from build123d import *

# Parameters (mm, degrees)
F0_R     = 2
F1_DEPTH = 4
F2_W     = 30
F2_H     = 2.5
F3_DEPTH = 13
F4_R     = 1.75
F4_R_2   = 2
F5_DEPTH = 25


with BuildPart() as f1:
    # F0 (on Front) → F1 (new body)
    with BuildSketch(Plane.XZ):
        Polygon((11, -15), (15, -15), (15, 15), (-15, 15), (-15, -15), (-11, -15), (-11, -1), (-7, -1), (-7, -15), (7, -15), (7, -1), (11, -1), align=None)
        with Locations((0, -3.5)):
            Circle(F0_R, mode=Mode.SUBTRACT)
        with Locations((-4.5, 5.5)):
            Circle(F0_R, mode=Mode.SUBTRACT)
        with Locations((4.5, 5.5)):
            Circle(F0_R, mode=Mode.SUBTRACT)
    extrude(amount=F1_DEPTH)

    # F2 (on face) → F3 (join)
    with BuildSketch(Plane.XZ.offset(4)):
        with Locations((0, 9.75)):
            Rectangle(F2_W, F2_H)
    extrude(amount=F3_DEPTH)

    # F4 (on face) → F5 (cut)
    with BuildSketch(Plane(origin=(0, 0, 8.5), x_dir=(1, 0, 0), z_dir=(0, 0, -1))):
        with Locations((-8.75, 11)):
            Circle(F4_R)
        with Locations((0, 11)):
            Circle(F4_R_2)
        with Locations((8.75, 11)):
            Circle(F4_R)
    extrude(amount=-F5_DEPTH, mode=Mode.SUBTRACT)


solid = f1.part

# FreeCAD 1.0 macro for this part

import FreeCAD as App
import Part
import Sketcher

doc = App.newDocument("Part")
body = doc.addObject("PartDesign::Body", "Body")

sketch1 = body.newObject("Sketcher::SketchObject", "Sketch")
sketch1.AttachmentSupport = (doc.getObject("XZ_Plane"), [""])
sketch1.MapMode = "FlatFace"
sketch1.addGeometry([
    Part.LineSegment(App.Vector(11, -15, 0), App.Vector(15, -15, 0)),
    Part.LineSegment(App.Vector(15, -15, 0), App.Vector(15, 15, 0)),
    Part.LineSegment(App.Vector(15, 15, 0), App.Vector(-15, 15, 0)),
    Part.LineSegment(App.Vector(-15, 15, 0), App.Vector(-15, -15, 0)),
    Part.LineSegment(App.Vector(-15, -15, 0), App.Vector(-11, -15, 0)),
    Part.LineSegment(App.Vector(-11, -15, 0), App.Vector(-11, -1, 0)),
    Part.LineSegment(App.Vector(-11, -1, 0), App.Vector(-7, -1, 0)),
    Part.LineSegment(App.Vector(-7, -1, 0), App.Vector(-7, -15, 0)),
    Part.LineSegment(App.Vector(-7, -15, 0), App.Vector(7, -15, 0)),
    Part.LineSegment(App.Vector(7, -15, 0), App.Vector(7, -1, 0)),
    Part.LineSegment(App.Vector(7, -1, 0), App.Vector(11, -1, 0)),
    Part.LineSegment(App.Vector(11, -1, 0), App.Vector(11, -15, 0)),
    Part.Circle(App.Vector(0, -3.5, 0), App.Vector(0, 0, 1), 2),
    Part.Circle(App.Vector(-4.5, 5.5, 0), App.Vector(0, 0, 1), 2),
    Part.Circle(App.Vector(4.5, 5.5, 0), App.Vector(0, 0, 1), 2),
], False)
sketch1.addConstraint([
    Sketcher.Constraint("Coincident", 0, 2, 1, 1),
    Sketcher.Constraint("Coincident", 1, 2, 2, 1),
    Sketcher.Constraint("Coincident", 2, 2, 3, 1),
    Sketcher.Constraint("Coincident", 3, 2, 4, 1),
    Sketcher.Constraint("Coincident", 4, 2, 5, 1),
    Sketcher.Constraint("Coincident", 5, 2, 6, 1),
    Sketcher.Constraint("Coincident", 6, 2, 7, 1),
    Sketcher.Constraint("Coincident", 7, 2, 8, 1),
    Sketcher.Constraint("Coincident", 8, 2, 9, 1),
    Sketcher.Constraint("Coincident", 9, 2, 10, 1),
    Sketcher.Constraint("Coincident", 10, 2, 11, 1),
    Sketcher.Constraint("Coincident", 11, 2, 0, 1),
    Sketcher.Constraint("Horizontal", 0),
    Sketcher.Constraint("Vertical", 1),
    Sketcher.Constraint("Horizontal", 2),
    Sketcher.Constraint("Vertical", 3),
    Sketcher.Constraint("Horizontal", 4),
    Sketcher.Constraint("Vertical", 5),
    Sketcher.Constraint("Horizontal", 6),
    Sketcher.Constraint("Vertical", 7),
    Sketcher.Constraint("Horizontal", 8),
    Sketcher.Constraint("Vertical", 9),
    Sketcher.Constraint("Horizontal", 10),
    Sketcher.Constraint("Vertical", 11),
    Sketcher.Constraint("Equal", 12, 13),
    Sketcher.Constraint("Equal", 13, 14),
    Sketcher.Constraint("Symmetric", 0, 2, 2, 2, -1, 1),
    Sketcher.Constraint("Symmetric", 13, 3, 14, 3, -2),
    Sketcher.Constraint("Symmetric", 6, 2, 9, 2, -2),
    Sketcher.Constraint("Symmetric", 4, 2, 11, 2, -2),
    Sketcher.Constraint("PointOnObject", 12, 3, -2),
    Sketcher.Constraint("Horizontal", 4, 2, 7, 2),
    Sketcher.Constraint("Equal", 4, 6),
    Sketcher.Constraint("Equal", 2, 1),
    Sketcher.Constraint("Equal", 8, 5),
    Sketcher.Constraint("Diameter", 12, 4.0),
    Sketcher.Constraint("DistanceX", 0, 1, 0, 2, 4.0),
    Sketcher.Constraint("DistanceX", 2, 2, 2, 1, 30.0),
    Sketcher.Constraint("DistanceY", 12, 3, 13, 3, 9.0),
    Sketcher.Constraint("DistanceX", 13, 3, 14, 3, 9.0),
    Sketcher.Constraint("DistanceY", 12, 3, -1, 1, 3.5),
])
pad1 = body.newObject("PartDesign::Pad", "Pad")
pad1.Profile = sketch1
pad1.Length = 4

sketch2 = body.newObject("Sketcher::SketchObject", "Sketch001")
sketch2.AttachmentSupport = (doc.getObject("XZ_Plane"), [""])
sketch2.MapMode = "FlatFace"
sketch2.AttachmentOffset = App.Placement(App.Vector(0, 0, 4), App.Rotation())
sketch2.addGeometry([
    Part.LineSegment(App.Vector(-15, 11, 0), App.Vector(-15, 8.5, 0)),
    Part.LineSegment(App.Vector(-15, 8.5, 0), App.Vector(15, 8.5, 0)),
    Part.LineSegment(App.Vector(15, 8.5, 0), App.Vector(15, 11, 0)),
    Part.LineSegment(App.Vector(15, 11, 0), App.Vector(-15, 11, 0)),
], False)
sketch2.addConstraint([
    Sketcher.Constraint("Coincident", 0, 2, 1, 1),
    Sketcher.Constraint("Coincident", 1, 2, 2, 1),
    Sketcher.Constraint("Coincident", 2, 2, 3, 1),
    Sketcher.Constraint("Coincident", 3, 2, 0, 1),
    Sketcher.Constraint("Vertical", 0),
    Sketcher.Constraint("Horizontal", 1),
    Sketcher.Constraint("Vertical", 2),
    Sketcher.Constraint("Horizontal", 3),
    Sketcher.Constraint("DistanceX", 1, 1, 1, 2, 30.0),
    Sketcher.Constraint("DistanceY", 0, 2, 0, 1, 2.5),
    Sketcher.Constraint("DistanceX", 0, 2, -1, 1, 15.0),
    Sketcher.Constraint("DistanceY", -1, 1, 2, 2, 11.0),
])
pad2 = body.newObject("PartDesign::Pad", "Pad001")
pad2.Profile = sketch2
pad2.Length = 13

sketch3 = body.newObject("Sketcher::SketchObject", "Sketch002")
sketch3.AttachmentSupport = (doc.getObject("XY_Plane"), [""])
sketch3.MapMode = "FlatFace"
sketch3.AttachmentOffset = App.Placement(App.Vector(0, 0, 8.5), App.Rotation())
sketch3.addGeometry([
    Part.Circle(App.Vector(-8.75, -11, 0), App.Vector(0, 0, 1), 1.75),
    Part.Circle(App.Vector(0, -11, 0), App.Vector(0, 0, 1), 2),
    Part.Circle(App.Vector(8.75, -11, 0), App.Vector(0, 0, 1), 1.75),
], False)
sketch3.addConstraint([
    Sketcher.Constraint("Equal", 0, 2),
    Sketcher.Constraint("Symmetric", 0, 3, 2, 3, -2),
    Sketcher.Constraint("PointOnObject", 1, 3, -2),
    Sketcher.Constraint("Horizontal", 0, 3, 1, 3),
    Sketcher.Constraint("Diameter", 1, 4.0),
    Sketcher.Constraint("Diameter", 0, 3.5),
    Sketcher.Constraint("DistanceY", 0, 3, -1, 1, 11.0),
    Sketcher.Constraint("DistanceX", 0, 3, 2, 3, 17.5),
])
pocket1 = body.newObject("PartDesign::Pocket", "Pocket")
pocket1.Profile = sketch3
pocket1.Length = 25
pocket1.Reversed = True

doc.recompute()
